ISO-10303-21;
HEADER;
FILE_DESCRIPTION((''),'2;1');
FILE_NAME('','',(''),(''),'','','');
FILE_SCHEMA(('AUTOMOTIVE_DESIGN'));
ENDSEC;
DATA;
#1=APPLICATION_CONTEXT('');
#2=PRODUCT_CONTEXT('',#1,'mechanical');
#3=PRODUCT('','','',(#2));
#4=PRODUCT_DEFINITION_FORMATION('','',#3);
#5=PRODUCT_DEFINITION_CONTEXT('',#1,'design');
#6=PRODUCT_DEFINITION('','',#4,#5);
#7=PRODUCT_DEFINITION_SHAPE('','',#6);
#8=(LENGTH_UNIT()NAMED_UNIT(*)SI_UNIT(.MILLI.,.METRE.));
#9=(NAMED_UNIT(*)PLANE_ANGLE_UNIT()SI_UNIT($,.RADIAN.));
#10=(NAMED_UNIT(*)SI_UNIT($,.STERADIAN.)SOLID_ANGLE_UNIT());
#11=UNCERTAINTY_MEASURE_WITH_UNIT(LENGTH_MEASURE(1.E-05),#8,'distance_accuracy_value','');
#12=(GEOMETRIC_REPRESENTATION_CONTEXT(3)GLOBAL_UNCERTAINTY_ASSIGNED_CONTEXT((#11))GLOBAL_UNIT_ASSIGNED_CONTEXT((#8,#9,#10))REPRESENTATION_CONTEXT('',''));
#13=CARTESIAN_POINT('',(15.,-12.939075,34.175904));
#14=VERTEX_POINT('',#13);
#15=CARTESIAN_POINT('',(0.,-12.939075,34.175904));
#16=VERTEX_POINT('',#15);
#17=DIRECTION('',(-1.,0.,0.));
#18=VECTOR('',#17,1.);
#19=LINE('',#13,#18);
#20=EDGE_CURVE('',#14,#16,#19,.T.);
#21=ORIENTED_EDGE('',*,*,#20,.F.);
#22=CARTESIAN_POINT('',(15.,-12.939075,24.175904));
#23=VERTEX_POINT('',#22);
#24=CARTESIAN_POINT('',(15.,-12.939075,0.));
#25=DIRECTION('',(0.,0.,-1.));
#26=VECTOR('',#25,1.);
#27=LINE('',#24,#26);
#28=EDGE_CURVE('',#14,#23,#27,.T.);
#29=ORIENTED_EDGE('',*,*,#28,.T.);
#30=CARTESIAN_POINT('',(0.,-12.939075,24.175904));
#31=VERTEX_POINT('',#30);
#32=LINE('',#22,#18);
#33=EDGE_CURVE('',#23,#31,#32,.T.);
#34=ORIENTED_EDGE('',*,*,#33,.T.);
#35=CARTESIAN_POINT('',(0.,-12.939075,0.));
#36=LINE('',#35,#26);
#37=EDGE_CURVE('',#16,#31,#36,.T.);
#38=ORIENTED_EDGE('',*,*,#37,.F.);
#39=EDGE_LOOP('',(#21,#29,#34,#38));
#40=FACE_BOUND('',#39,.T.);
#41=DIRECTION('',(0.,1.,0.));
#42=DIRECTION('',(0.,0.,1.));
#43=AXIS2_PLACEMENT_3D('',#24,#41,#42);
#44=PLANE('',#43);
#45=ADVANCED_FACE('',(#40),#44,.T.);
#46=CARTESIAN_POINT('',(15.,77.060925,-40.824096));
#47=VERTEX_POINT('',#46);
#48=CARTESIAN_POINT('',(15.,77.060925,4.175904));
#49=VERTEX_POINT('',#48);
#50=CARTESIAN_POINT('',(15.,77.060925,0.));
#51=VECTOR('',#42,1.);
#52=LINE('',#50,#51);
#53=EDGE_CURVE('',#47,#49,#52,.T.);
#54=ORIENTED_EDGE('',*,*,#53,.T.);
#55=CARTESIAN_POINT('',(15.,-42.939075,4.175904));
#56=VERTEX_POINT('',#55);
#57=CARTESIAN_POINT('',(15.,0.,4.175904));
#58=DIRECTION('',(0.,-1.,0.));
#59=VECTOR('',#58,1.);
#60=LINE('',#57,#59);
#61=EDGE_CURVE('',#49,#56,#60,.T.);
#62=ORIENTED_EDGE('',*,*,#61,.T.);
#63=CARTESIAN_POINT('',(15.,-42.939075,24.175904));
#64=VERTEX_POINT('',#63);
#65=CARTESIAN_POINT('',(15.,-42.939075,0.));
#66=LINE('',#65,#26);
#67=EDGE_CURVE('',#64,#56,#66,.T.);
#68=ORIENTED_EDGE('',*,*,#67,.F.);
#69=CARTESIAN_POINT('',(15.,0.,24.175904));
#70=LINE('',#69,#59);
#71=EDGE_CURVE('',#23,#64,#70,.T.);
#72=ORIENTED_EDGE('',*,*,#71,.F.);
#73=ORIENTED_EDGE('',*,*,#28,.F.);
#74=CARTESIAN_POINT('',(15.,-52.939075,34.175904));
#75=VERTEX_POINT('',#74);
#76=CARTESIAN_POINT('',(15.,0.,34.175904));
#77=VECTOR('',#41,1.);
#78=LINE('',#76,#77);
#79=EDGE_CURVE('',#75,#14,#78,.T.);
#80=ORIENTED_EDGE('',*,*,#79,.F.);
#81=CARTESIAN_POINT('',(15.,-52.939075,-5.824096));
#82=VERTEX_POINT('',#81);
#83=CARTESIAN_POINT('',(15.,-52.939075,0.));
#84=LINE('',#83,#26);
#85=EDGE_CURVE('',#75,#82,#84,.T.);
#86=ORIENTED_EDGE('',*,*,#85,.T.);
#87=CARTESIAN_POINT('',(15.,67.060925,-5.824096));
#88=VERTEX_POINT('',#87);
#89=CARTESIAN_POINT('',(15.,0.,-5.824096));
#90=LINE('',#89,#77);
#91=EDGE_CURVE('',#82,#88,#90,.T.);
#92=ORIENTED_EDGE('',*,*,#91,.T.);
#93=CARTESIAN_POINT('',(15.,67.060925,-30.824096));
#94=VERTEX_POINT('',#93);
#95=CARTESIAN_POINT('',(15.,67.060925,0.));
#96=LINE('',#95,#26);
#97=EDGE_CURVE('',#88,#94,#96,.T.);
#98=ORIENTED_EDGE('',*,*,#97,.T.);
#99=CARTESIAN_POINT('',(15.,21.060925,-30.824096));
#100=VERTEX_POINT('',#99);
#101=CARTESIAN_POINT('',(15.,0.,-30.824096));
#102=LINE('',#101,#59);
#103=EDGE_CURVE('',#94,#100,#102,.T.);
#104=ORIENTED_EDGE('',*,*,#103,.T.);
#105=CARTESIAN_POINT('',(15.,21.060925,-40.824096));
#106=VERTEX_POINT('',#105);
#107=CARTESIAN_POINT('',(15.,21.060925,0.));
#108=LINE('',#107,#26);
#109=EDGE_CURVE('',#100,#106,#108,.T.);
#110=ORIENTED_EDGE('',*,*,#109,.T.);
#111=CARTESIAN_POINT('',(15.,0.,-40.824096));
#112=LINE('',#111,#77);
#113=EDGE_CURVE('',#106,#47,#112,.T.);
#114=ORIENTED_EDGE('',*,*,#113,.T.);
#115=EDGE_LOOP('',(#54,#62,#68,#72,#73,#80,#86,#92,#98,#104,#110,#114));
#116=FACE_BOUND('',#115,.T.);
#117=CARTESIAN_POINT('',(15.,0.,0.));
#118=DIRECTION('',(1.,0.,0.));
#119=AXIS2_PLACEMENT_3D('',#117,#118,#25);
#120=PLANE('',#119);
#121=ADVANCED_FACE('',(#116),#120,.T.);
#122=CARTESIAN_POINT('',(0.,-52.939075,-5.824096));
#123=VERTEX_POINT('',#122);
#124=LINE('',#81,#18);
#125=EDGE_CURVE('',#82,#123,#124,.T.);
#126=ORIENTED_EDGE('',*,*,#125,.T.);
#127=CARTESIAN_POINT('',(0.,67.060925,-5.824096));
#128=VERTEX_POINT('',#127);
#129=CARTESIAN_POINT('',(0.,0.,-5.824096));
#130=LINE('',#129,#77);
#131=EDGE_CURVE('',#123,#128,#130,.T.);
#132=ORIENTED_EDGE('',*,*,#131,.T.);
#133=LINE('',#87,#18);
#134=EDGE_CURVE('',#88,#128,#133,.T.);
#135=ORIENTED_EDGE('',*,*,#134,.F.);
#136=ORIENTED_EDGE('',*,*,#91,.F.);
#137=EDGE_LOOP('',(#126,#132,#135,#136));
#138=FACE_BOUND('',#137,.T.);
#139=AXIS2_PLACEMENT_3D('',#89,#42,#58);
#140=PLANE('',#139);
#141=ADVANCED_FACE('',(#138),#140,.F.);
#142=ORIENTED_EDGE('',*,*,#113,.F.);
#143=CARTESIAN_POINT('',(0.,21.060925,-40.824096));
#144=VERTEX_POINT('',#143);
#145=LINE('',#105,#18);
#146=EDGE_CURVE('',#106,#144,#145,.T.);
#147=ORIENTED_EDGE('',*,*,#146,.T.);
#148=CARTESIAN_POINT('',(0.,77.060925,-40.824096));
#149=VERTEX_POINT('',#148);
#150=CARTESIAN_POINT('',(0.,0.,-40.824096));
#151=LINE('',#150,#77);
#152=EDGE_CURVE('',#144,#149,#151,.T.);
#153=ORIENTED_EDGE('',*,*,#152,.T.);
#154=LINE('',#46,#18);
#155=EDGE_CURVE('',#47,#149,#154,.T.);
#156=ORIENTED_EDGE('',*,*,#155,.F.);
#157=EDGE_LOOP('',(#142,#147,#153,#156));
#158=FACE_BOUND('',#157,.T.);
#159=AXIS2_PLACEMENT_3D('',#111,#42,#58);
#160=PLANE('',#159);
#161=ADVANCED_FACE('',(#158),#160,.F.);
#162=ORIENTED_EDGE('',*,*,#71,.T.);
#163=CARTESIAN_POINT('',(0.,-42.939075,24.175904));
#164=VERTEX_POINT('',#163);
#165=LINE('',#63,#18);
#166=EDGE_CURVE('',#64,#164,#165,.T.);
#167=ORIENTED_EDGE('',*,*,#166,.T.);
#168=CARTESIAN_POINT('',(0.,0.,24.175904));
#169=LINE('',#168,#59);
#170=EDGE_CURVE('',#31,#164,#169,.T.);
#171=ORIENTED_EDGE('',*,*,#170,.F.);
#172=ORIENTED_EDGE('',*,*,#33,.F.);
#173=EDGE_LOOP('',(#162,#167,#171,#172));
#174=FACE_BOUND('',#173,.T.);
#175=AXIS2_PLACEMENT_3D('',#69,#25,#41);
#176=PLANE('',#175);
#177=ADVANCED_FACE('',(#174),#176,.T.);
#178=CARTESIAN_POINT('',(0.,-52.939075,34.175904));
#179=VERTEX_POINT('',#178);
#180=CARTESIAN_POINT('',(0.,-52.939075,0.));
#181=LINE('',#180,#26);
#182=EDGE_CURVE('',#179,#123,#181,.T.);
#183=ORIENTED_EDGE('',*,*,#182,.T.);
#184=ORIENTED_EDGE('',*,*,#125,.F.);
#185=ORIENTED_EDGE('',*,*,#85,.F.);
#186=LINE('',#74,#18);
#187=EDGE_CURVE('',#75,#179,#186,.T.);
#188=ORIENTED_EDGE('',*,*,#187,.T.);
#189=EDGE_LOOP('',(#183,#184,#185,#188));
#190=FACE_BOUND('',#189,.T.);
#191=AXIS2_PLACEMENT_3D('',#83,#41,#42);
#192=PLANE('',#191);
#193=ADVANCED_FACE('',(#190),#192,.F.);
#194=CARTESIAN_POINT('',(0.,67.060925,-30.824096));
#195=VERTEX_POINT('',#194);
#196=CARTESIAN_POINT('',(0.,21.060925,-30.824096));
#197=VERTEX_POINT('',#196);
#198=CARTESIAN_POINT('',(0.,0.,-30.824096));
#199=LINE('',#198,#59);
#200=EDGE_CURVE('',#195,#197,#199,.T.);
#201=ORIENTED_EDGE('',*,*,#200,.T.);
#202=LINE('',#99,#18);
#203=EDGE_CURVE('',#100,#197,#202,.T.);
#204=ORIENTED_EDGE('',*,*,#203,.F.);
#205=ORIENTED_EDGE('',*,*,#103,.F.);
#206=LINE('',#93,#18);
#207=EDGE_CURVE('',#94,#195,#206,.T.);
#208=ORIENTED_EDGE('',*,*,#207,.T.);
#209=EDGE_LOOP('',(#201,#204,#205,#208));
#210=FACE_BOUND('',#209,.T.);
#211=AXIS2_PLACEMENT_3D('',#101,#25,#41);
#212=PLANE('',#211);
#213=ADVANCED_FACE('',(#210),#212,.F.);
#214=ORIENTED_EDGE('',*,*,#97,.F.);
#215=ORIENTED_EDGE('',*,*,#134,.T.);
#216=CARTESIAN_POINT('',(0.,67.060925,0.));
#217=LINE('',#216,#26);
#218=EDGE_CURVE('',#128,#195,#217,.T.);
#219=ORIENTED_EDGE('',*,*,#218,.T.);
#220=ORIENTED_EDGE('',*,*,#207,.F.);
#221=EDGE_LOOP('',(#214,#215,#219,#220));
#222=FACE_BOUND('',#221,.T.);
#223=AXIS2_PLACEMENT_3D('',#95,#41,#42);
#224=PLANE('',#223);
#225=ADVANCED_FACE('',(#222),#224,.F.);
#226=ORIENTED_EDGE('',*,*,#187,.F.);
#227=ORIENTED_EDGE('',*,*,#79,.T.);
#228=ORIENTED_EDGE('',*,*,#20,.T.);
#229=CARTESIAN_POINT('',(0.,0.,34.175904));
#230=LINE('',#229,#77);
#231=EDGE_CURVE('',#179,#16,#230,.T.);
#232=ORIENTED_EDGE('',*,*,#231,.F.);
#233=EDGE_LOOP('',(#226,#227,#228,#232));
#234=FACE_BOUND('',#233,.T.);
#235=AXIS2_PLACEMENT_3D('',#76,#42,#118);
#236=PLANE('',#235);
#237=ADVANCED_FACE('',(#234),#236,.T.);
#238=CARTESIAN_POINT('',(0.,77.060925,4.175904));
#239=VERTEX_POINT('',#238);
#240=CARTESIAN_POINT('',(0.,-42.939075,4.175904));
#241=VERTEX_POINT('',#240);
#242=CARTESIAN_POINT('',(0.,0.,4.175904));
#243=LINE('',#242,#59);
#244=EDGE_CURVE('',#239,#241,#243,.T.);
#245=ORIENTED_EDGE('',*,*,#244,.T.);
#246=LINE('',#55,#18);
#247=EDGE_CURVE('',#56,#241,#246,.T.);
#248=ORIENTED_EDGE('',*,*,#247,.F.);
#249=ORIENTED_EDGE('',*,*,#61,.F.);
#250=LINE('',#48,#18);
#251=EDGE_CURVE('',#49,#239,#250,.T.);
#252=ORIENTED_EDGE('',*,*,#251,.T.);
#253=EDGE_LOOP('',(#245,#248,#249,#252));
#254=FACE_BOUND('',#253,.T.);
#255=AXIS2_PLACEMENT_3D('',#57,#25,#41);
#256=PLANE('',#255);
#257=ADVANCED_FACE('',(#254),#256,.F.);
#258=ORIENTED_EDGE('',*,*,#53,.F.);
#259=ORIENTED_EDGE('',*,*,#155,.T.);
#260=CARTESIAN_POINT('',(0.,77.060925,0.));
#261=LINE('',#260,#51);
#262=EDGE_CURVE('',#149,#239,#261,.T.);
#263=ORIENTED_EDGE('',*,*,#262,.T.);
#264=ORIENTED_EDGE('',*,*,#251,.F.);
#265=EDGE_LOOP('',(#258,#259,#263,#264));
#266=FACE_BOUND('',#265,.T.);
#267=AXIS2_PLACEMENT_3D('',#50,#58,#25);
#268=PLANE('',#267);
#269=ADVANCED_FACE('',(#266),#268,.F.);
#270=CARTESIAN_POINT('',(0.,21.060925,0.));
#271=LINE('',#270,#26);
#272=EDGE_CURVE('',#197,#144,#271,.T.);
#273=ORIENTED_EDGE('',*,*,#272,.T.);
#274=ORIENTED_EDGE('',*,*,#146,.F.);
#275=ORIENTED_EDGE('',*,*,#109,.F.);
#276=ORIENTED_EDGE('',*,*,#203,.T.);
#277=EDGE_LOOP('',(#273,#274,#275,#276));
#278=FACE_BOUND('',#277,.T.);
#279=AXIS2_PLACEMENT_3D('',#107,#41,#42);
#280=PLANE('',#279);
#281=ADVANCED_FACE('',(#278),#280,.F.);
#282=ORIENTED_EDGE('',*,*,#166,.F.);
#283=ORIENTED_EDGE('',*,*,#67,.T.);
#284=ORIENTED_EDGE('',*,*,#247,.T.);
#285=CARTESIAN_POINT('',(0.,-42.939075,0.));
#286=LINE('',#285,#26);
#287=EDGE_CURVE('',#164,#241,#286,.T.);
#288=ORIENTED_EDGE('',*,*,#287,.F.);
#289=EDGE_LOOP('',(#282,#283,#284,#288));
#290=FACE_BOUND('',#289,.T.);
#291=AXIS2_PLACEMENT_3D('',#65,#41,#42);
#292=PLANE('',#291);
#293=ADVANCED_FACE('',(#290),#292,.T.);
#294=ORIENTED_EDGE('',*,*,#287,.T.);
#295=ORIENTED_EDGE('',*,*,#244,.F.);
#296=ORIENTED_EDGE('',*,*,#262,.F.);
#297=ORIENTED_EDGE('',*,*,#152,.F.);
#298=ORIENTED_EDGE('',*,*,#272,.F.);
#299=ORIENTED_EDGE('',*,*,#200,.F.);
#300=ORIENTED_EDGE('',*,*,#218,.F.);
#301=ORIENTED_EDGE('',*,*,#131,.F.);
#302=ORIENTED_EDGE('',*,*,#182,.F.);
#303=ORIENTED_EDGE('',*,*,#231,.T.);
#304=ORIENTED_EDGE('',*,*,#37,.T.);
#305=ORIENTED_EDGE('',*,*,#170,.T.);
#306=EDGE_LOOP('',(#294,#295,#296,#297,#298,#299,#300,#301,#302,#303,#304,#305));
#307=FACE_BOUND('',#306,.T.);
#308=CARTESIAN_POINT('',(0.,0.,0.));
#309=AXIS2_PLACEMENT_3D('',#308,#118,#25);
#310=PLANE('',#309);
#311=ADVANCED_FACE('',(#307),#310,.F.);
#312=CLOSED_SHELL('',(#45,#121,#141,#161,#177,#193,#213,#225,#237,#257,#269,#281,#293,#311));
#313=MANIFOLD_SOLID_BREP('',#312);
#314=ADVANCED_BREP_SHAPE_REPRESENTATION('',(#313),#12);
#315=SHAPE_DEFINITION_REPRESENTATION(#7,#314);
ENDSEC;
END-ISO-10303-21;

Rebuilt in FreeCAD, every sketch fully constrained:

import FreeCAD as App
import Part
import Sketcher
from FreeCAD import Vector
Q = App.Units.Quantity

doc = App.newDocument("Part")
body = doc.addObject("PartDesign::Body", "Body")

# Sketch on YZ plane
sketch1 = doc.addObject("Sketcher::SketchObject", "Sketch")
body.addObject(sketch1)
sketch1.AttachmentSupport = (doc.YZ_Plane, [""])
sketch1.MapMode = "FlatFace"
sketch1.addGeometry(Part.LineSegment(Vector(67, -31, 0), Vector(21, -31, 0)), False)
sketch1.addGeometry(Part.LineSegment(Vector(21, -31, 0), Vector(21, -41, 0)), False)
sketch1.addGeometry(Part.LineSegment(Vector(21, -41, 0), Vector(77, -41, 0)), False)
sketch1.addGeometry(Part.LineSegment(Vector(77, -41, 0), Vector(77, 4, 0)), False)
sketch1.addGeometry(Part.LineSegment(Vector(77, 4, 0), Vector(-43, 4, 0)), False)
sketch1.addGeometry(Part.LineSegment(Vector(-43, 4, 0), Vector(-43, 24, 0)), False)
sketch1.addGeometry(Part.LineSegment(Vector(-43, 24, 0), Vector(-13, 24, 0)), False)
sketch1.addGeometry(Part.LineSegment(Vector(-13, 24, 0), Vector(-13, 34, 0)), False)
sketch1.addGeometry(Part.LineSegment(Vector(-13, 34, 0), Vector(-53, 34, 0)), False)
sketch1.addGeometry(Part.LineSegment(Vector(-53, 34, 0), Vector(-53, -6, 0)), False)
sketch1.addGeometry(Part.LineSegment(Vector(-53, -6, 0), Vector(67, -6, 0)), False)
sketch1.addGeometry(Part.LineSegment(Vector(67, -6, 0), Vector(67, -31, 0)), False)
sketch1.addConstraint(Sketcher.Constraint("Coincident", 0, 2, 1, 1))
sketch1.addConstraint(Sketcher.Constraint("Coincident", 1, 2, 2, 1))
sketch1.addConstraint(Sketcher.Constraint("Coincident", 2, 2, 3, 1))
sketch1.addConstraint(Sketcher.Constraint("Coincident", 3, 2, 4, 1))
sketch1.addConstraint(Sketcher.Constraint("Coincident", 4, 2, 5, 1))
sketch1.addConstraint(Sketcher.Constraint("Coincident", 5, 2, 6, 1))
sketch1.addConstraint(Sketcher.Constraint("Coincident", 6, 2, 7, 1))
sketch1.addConstraint(Sketcher.Constraint("Coincident", 7, 2, 8, 1))
sketch1.addConstraint(Sketcher.Constraint("Coincident", 8, 2, 9, 1))
sketch1.addConstraint(Sketcher.Constraint("Coincident", 9, 2, 10, 1))
sketch1.addConstraint(Sketcher.Constraint("Coincident", 10, 2, 11, 1))
sketch1.addConstraint(Sketcher.Constraint("Coincident", 11, 2, 0, 1))
sketch1.addConstraint(Sketcher.Constraint("Horizontal", 0))
sketch1.addConstraint(Sketcher.Constraint("Vertical", 1))
sketch1.addConstraint(Sketcher.Constraint("Horizontal", 2))
sketch1.addConstraint(Sketcher.Constraint("Vertical", 3))
sketch1.addConstraint(Sketcher.Constraint("Horizontal", 4))
sketch1.addConstraint(Sketcher.Constraint("Vertical", 5))
sketch1.addConstraint(Sketcher.Constraint("Horizontal", 6))
sketch1.addConstraint(Sketcher.Constraint("Vertical", 7))
sketch1.addConstraint(Sketcher.Constraint("Horizontal", 8))
sketch1.addConstraint(Sketcher.Constraint("Vertical", 9))
sketch1.addConstraint(Sketcher.Constraint("Horizontal", 10))
sketch1.addConstraint(Sketcher.Constraint("Vertical", 11))
sketch1.addConstraint(Sketcher.Constraint("Equal", 4, 10))
sketch1.addConstraint(Sketcher.Constraint("Equal", 1, 7))
sketch1.addConstraint(Sketcher.Constraint("Equal", 8, 9))
sketch1.addConstraint(Sketcher.Constraint("DistanceX", 0, 2, 0, 1, Q("46 mm")))
sketch1.addConstraint(Sketcher.Constraint("DistanceX", 2, 1, 2, 2, Q("56 mm")))
sketch1.addConstraint(Sketcher.Constraint("DistanceX", 4, 2, 4, 1, Q("120 mm")))
sketch1.addConstraint(Sketcher.Constraint("DistanceX", 6, 1, 6, 2, Q("30 mm")))
sketch1.addConstraint(Sketcher.Constraint("DistanceY", 1, 2, 1, 1, Q("10 mm")))
sketch1.addConstraint(Sketcher.Constraint("DistanceY", 3, 1, 3, 2, Q("45 mm")))
sketch1.addConstraint(Sketcher.Constraint("DistanceY", 5, 1, 5, 2, Q("20 mm")))
sketch1.addConstraint(Sketcher.Constraint("DistanceX", -1, 1, 0, 2, Q("21.060925 mm")))
sketch1.addConstraint(Sketcher.Constraint("DistanceY", 0, 2, -1, 1, Q("30.824096 mm")))
pad1 = doc.addObject("PartDesign::Pad", "Pad")
body.addObject(pad1)
pad1.Profile = sketch1
pad1.Length = 15

doc.recompute()
